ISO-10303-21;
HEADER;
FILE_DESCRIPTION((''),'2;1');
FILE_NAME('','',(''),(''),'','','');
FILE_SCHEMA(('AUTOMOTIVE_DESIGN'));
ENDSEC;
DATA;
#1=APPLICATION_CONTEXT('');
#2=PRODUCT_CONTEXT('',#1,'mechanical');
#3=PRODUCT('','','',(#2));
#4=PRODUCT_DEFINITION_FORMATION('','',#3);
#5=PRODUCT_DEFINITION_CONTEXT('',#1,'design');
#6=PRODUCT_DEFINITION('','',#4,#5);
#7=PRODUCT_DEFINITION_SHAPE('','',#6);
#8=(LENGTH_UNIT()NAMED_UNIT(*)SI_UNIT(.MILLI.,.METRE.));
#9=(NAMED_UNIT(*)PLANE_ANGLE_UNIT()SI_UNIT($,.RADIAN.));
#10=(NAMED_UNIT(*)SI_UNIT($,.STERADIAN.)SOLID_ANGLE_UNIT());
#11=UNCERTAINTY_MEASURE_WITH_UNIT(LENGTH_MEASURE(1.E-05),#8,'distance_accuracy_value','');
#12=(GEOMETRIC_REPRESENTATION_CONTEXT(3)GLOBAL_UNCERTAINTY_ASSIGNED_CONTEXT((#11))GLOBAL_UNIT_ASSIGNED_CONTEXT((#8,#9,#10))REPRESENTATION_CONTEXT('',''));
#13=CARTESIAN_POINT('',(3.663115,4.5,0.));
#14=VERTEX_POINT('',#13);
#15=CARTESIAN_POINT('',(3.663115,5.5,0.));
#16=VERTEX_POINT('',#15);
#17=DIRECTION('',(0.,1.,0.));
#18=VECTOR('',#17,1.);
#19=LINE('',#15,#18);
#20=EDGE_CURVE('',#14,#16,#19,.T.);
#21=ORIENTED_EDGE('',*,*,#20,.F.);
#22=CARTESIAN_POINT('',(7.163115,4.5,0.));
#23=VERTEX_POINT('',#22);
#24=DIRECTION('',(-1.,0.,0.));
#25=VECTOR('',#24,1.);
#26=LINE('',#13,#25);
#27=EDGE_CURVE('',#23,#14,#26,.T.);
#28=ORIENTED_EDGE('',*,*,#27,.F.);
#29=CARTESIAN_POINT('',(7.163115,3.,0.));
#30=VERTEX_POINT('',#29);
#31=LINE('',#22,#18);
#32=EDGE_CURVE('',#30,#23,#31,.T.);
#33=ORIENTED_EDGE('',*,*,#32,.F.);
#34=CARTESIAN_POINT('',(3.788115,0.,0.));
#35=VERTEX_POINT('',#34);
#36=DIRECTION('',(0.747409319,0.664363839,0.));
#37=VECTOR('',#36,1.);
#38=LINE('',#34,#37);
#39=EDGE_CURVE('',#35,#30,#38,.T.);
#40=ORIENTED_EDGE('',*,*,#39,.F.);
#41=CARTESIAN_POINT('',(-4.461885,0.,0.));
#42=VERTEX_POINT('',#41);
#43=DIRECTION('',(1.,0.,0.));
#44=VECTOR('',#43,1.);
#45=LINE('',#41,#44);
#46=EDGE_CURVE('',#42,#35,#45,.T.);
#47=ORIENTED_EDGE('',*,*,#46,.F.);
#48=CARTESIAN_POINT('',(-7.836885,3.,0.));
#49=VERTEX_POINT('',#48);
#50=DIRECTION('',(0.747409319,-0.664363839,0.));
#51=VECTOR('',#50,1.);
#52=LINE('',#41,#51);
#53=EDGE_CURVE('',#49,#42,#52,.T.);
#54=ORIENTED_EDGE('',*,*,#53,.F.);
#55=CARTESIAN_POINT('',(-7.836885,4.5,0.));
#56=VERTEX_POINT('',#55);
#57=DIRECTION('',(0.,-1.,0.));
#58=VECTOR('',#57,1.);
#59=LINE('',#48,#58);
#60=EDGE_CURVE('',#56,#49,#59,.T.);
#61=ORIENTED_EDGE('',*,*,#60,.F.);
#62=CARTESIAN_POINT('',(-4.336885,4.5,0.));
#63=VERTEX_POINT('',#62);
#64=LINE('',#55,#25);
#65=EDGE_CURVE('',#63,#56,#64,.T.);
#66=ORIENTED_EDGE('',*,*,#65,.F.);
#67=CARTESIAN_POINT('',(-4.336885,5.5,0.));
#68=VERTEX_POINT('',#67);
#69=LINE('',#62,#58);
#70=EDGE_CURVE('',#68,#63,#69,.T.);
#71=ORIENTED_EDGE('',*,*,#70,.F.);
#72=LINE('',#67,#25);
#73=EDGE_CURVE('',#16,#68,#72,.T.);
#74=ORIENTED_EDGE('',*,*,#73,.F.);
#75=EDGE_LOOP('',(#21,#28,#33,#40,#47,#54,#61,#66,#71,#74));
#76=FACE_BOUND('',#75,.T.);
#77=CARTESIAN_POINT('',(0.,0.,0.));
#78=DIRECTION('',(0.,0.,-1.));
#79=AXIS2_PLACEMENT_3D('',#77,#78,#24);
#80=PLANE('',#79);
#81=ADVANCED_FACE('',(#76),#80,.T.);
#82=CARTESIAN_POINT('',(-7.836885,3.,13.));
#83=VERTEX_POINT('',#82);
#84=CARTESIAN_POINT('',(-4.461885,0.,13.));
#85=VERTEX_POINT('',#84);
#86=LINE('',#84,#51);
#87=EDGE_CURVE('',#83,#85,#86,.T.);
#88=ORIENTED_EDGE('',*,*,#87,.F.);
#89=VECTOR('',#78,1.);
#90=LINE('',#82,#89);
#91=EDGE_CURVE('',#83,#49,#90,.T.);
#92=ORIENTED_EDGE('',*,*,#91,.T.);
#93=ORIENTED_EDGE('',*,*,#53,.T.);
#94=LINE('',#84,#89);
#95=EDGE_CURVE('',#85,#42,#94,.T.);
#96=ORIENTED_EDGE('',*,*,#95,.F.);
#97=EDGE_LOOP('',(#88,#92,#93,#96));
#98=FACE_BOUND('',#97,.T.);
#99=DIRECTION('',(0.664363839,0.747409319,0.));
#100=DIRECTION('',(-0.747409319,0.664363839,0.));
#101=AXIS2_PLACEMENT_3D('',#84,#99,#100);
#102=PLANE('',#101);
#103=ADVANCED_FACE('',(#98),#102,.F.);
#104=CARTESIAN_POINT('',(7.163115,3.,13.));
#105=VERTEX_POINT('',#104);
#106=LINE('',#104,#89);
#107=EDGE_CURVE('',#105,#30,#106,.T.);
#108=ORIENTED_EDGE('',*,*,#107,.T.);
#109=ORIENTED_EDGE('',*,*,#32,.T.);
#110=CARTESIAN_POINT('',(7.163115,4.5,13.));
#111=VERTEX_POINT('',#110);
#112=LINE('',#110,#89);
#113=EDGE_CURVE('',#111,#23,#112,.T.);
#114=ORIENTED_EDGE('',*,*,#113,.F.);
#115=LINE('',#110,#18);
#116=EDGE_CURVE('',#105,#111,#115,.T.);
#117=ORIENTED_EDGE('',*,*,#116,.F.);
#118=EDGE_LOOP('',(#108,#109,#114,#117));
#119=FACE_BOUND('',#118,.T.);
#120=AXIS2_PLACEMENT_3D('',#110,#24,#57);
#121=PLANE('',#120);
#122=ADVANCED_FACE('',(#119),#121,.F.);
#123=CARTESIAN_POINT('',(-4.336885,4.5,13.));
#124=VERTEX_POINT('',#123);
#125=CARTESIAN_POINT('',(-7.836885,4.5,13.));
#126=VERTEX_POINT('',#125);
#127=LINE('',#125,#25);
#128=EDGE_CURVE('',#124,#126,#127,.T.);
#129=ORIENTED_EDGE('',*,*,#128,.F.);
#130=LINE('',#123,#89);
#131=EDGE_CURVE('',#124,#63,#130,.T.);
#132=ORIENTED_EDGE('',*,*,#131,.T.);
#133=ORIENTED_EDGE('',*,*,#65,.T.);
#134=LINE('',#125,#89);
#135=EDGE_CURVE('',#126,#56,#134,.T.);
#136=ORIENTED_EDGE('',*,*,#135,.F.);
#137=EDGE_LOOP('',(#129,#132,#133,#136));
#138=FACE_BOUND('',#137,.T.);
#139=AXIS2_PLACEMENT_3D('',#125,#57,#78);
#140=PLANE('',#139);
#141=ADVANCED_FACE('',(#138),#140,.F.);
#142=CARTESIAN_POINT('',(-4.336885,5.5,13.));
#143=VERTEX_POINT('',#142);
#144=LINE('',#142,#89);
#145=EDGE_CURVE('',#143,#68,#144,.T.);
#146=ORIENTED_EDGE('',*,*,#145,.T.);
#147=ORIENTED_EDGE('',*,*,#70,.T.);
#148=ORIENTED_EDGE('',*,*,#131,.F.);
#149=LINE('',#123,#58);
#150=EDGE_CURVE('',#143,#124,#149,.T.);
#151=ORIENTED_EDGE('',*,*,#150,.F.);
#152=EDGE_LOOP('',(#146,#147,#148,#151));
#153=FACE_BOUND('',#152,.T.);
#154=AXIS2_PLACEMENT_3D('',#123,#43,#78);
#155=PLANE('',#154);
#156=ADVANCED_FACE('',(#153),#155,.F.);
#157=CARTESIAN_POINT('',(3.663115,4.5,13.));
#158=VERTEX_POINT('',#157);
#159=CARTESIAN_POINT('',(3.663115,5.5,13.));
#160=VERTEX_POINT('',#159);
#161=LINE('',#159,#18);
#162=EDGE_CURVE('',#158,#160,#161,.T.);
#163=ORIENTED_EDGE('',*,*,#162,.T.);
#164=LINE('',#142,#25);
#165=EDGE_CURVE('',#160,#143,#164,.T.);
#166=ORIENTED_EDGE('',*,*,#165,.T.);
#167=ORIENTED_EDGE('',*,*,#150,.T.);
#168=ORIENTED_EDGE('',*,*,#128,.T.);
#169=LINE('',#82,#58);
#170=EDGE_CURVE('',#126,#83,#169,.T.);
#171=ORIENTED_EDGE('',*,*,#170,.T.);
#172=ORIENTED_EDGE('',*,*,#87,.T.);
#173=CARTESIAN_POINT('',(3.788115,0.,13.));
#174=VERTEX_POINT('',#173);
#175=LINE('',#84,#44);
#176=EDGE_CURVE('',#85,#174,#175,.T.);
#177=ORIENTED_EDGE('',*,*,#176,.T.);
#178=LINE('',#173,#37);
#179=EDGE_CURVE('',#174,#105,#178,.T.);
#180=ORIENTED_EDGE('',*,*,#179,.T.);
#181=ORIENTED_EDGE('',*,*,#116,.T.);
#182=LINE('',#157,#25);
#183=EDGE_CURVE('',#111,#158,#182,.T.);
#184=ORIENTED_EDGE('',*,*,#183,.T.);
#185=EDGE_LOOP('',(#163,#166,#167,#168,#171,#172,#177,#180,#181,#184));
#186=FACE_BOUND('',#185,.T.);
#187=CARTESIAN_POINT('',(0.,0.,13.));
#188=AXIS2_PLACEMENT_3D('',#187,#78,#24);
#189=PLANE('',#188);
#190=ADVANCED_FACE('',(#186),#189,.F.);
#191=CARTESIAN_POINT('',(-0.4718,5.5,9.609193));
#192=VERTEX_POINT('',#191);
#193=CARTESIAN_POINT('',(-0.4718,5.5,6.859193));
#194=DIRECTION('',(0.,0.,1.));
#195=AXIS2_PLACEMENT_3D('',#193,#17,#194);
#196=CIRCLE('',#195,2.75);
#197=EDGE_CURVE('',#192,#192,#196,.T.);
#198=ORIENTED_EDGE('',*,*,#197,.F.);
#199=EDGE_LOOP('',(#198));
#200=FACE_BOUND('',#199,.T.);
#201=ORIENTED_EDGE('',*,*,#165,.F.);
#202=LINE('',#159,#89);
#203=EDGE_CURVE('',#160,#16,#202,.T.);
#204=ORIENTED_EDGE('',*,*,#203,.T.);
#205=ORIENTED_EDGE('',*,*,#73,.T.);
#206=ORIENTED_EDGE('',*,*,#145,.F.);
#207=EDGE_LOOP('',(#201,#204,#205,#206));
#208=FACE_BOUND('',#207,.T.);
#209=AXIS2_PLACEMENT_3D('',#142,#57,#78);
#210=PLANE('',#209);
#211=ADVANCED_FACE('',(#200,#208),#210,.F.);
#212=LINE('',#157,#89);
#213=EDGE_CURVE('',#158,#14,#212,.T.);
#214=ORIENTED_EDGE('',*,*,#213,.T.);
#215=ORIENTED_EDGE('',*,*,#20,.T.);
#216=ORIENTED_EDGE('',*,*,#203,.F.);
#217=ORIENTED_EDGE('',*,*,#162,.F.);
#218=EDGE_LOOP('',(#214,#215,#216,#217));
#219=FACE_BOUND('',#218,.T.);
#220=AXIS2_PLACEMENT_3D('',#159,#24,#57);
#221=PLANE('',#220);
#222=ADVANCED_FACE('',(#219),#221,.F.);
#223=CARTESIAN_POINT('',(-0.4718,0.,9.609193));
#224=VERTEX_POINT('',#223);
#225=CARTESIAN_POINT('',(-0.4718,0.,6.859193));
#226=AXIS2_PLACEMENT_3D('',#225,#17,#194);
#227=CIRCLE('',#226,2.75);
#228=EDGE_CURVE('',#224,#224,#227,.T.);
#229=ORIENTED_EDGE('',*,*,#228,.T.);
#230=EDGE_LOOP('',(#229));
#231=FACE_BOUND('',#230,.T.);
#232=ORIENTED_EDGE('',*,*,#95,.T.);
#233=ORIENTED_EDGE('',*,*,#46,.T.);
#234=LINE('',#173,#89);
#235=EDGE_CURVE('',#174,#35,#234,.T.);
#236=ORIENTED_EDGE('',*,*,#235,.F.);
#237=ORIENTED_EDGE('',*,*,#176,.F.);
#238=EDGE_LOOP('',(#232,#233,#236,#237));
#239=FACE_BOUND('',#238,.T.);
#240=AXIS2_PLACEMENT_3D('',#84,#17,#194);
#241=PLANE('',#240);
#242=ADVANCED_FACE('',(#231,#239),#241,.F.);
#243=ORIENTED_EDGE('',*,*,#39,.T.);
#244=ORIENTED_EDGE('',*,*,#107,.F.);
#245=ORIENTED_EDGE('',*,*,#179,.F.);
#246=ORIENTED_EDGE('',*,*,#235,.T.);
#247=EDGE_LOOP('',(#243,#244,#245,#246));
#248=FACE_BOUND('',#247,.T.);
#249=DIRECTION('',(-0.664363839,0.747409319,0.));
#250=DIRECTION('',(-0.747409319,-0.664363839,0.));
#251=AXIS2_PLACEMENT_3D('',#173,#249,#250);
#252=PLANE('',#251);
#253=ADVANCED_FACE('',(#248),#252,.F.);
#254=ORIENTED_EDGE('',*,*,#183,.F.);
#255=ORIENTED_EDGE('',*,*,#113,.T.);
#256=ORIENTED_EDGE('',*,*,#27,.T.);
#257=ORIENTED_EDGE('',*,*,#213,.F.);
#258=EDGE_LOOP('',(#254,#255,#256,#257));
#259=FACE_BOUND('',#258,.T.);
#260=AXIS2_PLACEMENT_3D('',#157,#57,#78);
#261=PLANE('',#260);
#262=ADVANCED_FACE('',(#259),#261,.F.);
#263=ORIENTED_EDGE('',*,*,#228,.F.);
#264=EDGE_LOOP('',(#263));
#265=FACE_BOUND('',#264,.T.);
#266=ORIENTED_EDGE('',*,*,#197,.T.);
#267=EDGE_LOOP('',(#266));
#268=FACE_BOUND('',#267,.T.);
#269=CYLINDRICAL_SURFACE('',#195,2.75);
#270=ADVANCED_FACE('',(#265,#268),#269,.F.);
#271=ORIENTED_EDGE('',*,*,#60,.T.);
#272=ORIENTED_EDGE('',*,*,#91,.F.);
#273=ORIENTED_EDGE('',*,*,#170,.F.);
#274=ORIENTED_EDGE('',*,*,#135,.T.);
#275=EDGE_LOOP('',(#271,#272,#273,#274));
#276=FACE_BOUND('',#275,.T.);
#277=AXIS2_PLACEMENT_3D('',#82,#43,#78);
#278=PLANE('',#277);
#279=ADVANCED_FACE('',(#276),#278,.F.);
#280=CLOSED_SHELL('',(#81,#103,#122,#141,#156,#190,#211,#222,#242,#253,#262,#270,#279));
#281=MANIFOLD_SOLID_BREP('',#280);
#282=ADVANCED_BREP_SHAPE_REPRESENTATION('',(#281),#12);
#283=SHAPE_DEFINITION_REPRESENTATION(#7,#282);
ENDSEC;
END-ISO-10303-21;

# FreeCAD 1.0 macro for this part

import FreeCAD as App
import Part
import Sketcher


def add_polygon(sketch, points):
    """Adds a closed chain of lines whose ends are joined by coincident constraints."""
    first, n = sketch.GeometryCount, len(points)
    for a, b in zip(points, points[1:] + points[:1]):
        sketch.addGeometry(Part.LineSegment(App.Vector(*a, 0), App.Vector(*b, 0)), False)
    for i in range(n):
        sketch.addConstraint(Sketcher.Constraint("Coincident", first + i, 2, first + (i + 1) % n, 1))

doc = App.newDocument("Part")
body = doc.addObject("PartDesign::Body", "Body")

# Sketch on XY plane
sketch1 = doc.addObject("Sketcher::SketchObject", "Sketch")
body.addObject(sketch1)
sketch1.AttachmentSupport = (doc.XY_Plane, [""])
sketch1.MapMode = "FlatFace"
add_polygon(sketch1, [(-4.5, 0), (3.8, 0), (7.2, 3), (7.2, 4.5), (3.7, 4.5), (3.7, 5.5), (-4.3, 5.5), (-4.3, 4.5), (-7.8, 4.5), (-7.8, 3)])  # lines 0-9
sketch1.addConstraint([
    Sketcher.Constraint("Horizontal", 0),
    Sketcher.Constraint("Vertical", 2),
    Sketcher.Constraint("Horizontal", 3),
    Sketcher.Constraint("Vertical", 4),
    Sketcher.Constraint("Horizontal", 5),
    Sketcher.Constraint("Vertical", 6),
    Sketcher.Constraint("Horizontal", 7),
    Sketcher.Constraint("Vertical", 8),
    Sketcher.Constraint("PointOnObject", 0, 2, -1),
    Sketcher.Constraint("Horizontal", 3, 2, 6, 2),
    Sketcher.Constraint("Horizontal", 1, 2, 8, 2),
    Sketcher.Constraint("Equal", 3, 7),
    Sketcher.Constraint("Equal", 1, 9),
    Sketcher.Constraint("DistanceX", 5, 2, 5, 1, 8.0),
    Sketcher.Constraint("DistanceY", 4, 1, 4, 2, 1.0),
    Sketcher.Constraint("DistanceX", 3, 2, 3, 1, 3.5),
    Sketcher.Constraint("DistanceY", 2, 1, 2, 2, 1.5),
    Sketcher.Constraint("DistanceY", -1, 1, 1, 2, 3.0),
    Sketcher.Constraint("DistanceX", 0, 1, 0, 2, 8.25),
    Sketcher.Constraint("DistanceX", -1, 1, 0, 2, 3.788115),
])
pad1 = doc.addObject("PartDesign::Pad", "Pad")
body.addObject(pad1)
pad1.Profile = sketch1
pad1.Length = 13

# Sketch on YZ plane
sketch2 = doc.addObject("Sketcher::SketchObject", "Sketch001")
body.addObject(sketch2)
sketch2.AttachmentSupport = (doc.YZ_Plane, [""])
sketch2.MapMode = "FlatFace"
sketch2.AttachmentOffset = App.Placement(App.Vector(0, 0, -0.4718), App.Rotation())
add_polygon(sketch2, [(0, 6.9), (5.5, 6.9), (5.5, 9.6), (0, 9.6)])  # lines 0-3
sketch2.addGeometry(Part.LineSegment(App.Vector(5.5, 6.9, 0), App.Vector(0, 6.9, 0)), True)  # axis
sketch2.addConstraint([
    Sketcher.Constraint("Horizontal", 0),
    Sketcher.Constraint("Vertical", 1),
    Sketcher.Constraint("Horizontal", 2),
    Sketcher.Constraint("Vertical", 3),
    Sketcher.Constraint("Horizontal", 4),
    Sketcher.Constraint("Coincident", 4, 1, 0, 2),
    Sketcher.Constraint("PointOnObject", 2, 2, -2),
    Sketcher.Constraint("PointOnObject", 4, 2, -2),
    Sketcher.Constraint("DistanceX", 0, 1, 0, 2, 5.5),
    Sketcher.Constraint("DistanceY", 1, 1, 1, 2, 2.75),
    Sketcher.Constraint("DistanceY", -1, 1, 0, 2, 6.859193),
])
groove = doc.addObject("PartDesign::Groove", "Groove")
body.addObject(groove)
groove.Profile = sketch2
groove.ReferenceAxis = (sketch2, ["Axis0"])
groove.Angle = 360

doc.recompute()
